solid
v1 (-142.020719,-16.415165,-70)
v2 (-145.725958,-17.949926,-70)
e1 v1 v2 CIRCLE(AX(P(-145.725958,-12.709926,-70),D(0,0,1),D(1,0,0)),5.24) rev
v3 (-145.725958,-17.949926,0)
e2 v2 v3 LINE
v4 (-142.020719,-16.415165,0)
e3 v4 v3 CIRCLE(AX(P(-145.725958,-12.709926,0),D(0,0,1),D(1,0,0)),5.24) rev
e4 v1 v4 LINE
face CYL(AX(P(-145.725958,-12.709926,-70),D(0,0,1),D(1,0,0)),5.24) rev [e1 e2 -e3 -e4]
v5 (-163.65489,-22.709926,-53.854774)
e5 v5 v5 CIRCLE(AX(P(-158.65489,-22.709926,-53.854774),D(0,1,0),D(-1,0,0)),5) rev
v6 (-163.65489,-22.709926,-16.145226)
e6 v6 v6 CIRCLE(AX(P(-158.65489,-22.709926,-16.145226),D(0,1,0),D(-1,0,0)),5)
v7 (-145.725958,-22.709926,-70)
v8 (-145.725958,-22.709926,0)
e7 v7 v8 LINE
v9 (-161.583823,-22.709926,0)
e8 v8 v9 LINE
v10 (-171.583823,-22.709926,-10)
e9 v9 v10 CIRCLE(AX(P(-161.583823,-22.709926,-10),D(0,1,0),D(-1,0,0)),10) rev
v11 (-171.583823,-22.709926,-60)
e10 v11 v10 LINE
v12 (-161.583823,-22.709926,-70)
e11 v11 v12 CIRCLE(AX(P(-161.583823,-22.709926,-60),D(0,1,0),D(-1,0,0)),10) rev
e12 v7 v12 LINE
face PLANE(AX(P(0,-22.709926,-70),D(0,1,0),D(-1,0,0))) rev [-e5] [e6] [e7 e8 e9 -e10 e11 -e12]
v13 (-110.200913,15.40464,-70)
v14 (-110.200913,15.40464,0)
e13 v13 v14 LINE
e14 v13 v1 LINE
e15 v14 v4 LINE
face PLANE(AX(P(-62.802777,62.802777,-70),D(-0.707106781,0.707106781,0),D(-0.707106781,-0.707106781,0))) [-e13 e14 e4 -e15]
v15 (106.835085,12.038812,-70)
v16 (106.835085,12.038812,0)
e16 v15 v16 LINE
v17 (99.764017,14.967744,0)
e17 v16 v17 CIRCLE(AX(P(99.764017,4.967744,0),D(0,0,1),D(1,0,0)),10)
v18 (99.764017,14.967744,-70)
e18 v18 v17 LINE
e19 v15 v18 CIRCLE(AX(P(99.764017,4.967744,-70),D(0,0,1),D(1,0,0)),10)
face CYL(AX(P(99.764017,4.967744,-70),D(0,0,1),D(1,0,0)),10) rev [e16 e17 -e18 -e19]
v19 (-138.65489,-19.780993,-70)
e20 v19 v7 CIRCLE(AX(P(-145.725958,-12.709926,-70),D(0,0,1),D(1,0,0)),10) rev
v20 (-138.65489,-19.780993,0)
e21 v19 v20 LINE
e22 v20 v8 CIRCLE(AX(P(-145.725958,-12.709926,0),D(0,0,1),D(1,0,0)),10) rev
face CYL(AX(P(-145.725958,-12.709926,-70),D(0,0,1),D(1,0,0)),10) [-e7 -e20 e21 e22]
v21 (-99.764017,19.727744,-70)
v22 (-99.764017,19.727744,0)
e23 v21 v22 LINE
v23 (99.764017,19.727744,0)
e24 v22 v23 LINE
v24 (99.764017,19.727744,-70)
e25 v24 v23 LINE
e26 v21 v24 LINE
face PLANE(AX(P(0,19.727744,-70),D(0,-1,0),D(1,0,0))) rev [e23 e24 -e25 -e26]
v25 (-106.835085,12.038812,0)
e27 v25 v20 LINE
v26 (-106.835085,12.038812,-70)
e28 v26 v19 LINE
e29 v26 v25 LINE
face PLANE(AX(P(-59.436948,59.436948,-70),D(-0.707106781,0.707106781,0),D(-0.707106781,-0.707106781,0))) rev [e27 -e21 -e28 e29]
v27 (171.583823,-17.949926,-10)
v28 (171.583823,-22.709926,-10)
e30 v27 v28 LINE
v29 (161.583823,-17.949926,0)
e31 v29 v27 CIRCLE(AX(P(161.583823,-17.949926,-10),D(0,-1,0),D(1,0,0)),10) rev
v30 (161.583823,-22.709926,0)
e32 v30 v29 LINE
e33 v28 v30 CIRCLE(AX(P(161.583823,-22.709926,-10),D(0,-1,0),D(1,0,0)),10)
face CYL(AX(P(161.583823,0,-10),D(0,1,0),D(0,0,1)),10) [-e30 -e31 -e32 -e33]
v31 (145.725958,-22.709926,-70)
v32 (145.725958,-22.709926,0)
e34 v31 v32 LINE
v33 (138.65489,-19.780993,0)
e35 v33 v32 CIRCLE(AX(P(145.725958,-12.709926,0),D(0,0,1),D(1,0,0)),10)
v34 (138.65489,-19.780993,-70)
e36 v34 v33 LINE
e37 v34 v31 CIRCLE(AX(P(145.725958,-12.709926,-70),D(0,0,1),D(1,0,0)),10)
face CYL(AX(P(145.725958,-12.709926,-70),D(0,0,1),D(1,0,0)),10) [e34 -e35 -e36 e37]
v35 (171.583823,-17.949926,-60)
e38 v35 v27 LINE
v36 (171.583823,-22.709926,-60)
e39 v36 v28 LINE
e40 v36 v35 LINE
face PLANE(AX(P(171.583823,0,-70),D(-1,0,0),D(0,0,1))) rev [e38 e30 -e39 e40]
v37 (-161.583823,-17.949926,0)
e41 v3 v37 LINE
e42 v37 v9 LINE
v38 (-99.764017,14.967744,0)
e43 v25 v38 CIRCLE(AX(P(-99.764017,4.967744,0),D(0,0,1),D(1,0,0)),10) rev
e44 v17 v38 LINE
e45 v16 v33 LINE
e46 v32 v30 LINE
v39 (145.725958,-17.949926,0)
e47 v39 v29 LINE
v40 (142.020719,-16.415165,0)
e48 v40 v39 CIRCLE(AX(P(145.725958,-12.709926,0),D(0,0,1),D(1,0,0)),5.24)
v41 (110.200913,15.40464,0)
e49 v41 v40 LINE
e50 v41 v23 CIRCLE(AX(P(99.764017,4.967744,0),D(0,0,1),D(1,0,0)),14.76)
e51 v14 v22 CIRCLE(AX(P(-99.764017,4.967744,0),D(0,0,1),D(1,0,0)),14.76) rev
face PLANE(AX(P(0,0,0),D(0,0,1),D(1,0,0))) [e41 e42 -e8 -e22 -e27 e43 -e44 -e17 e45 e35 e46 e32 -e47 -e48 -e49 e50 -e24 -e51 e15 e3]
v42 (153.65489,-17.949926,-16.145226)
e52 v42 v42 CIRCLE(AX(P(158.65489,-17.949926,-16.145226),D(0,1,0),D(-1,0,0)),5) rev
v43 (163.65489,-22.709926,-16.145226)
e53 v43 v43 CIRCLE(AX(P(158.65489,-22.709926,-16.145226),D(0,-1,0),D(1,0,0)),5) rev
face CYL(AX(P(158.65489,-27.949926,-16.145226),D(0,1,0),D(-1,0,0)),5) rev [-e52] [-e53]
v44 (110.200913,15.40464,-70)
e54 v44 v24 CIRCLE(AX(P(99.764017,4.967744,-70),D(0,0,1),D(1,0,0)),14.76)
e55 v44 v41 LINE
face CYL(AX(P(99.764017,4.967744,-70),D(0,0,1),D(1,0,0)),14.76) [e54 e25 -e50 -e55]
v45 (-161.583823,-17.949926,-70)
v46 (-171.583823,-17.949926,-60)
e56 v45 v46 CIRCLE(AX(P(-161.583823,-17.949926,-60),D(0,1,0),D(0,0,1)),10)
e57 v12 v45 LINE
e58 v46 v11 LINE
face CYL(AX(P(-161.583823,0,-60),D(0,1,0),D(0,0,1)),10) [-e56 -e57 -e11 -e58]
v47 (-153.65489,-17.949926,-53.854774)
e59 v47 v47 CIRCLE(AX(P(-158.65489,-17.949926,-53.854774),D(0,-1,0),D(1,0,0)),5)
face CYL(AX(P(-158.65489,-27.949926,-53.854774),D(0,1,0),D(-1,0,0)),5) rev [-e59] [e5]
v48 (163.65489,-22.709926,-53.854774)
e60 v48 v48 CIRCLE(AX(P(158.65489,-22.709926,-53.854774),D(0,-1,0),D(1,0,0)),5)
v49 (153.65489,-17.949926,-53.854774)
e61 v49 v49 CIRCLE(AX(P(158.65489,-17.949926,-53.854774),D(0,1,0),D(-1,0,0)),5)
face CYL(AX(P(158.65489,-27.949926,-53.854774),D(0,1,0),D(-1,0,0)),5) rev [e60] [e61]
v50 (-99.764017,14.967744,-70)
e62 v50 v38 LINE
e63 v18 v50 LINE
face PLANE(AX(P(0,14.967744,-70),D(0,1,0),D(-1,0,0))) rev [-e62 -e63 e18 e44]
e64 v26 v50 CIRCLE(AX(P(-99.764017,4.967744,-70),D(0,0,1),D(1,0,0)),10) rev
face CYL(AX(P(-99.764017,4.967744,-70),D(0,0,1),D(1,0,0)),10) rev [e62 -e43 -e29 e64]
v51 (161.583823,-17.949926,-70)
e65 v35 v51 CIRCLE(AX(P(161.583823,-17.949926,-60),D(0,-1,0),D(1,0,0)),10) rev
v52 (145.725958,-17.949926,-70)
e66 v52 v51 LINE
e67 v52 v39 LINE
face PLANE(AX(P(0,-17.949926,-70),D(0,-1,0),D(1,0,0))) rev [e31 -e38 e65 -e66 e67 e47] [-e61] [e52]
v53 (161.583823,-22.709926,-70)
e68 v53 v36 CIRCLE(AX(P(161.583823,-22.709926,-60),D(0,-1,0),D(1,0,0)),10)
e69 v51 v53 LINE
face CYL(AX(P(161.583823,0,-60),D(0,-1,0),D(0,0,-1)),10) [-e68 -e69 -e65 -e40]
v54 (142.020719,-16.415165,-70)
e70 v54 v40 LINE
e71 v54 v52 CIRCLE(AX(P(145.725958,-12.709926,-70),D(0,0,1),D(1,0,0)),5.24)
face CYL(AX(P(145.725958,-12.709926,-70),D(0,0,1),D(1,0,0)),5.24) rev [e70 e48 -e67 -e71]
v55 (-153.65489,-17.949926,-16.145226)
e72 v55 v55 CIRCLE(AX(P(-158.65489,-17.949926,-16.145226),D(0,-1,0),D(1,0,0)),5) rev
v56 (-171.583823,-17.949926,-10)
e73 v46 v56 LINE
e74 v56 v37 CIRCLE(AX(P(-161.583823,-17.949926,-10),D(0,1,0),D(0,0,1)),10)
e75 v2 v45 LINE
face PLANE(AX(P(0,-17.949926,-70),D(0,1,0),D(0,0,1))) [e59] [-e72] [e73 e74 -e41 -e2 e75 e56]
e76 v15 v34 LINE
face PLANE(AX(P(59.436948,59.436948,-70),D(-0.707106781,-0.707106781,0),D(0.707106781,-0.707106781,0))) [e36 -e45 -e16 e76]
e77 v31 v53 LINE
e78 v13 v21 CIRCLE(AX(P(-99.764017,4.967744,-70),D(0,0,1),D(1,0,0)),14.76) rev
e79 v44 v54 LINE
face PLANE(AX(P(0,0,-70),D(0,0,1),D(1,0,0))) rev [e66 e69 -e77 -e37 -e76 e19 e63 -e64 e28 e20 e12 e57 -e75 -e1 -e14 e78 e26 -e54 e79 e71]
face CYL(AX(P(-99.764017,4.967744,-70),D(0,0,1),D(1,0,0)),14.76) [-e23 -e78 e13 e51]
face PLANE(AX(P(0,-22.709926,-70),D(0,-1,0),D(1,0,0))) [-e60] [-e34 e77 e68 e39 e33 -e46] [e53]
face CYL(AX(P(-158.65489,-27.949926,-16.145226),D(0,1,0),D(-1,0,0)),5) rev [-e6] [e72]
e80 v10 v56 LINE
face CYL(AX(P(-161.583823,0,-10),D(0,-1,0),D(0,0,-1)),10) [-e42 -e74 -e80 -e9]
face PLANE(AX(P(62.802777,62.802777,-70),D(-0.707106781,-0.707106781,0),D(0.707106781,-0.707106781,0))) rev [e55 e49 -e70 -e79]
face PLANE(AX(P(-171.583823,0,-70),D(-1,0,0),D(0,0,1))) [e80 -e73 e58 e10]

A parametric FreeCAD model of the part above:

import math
import FreeCAD as App
import Part
import Sketcher
from FreeCAD import Vector
Q = App.Units.Quantity


def edges_at(feature, points):
    """Names of the edges that pass closest to the given points."""
    edges = feature.Shape.Edges
    near = lambda p: min(range(len(edges)), key=lambda i: edges[i].distToShape(Part.Vertex(*p))[0])
    return sorted({f"Edge{near(p) + 1}" for p in points})

doc = App.newDocument("Part")
body = doc.addObject("PartDesign::Body", "Body")

# Sketch on XY plane
sketch1 = body.newObject("Sketcher::SketchObject", "Sketch")
sketch1.AttachmentSupport = (doc.getObject("XY_Plane"), [""])
sketch1.MapMode = "FlatFace"
sketch1.addGeometry(Part.LineSegment(Vector(142, -16.4, 0), Vector(110.2, 15.4, 0)), False)
sketch1.addGeometry(Part.ArcOfCircle(Part.Circle(Vector(99.8, 5, 0), Vector(0, 0, 1), 14.8), math.radians(45), math.radians(90)), False)
sketch1.addGeometry(Part.LineSegment(Vector(99.8, 19.7, 0), Vector(-99.8, 19.7, 0)), False)
sketch1.addGeometry(Part.ArcOfCircle(Part.Circle(Vector(-99.8, 5, 0), Vector(0, 0, 1), 14.8), math.radians(90), math.radians(135)), False)
sketch1.addGeometry(Part.LineSegment(Vector(-110.2, 15.4, 0), Vector(-142, -16.4, 0)), False)
sketch1.addGeometry(Part.ArcOfCircle(Part.Circle(Vector(-145.7, -12.7, 0), Vector(0, 0, 1), 5.2), math.radians(-90), math.radians(-45)), False)
sketch1.addGeometry(Part.LineSegment(Vector(-145.7, -17.9, 0), Vector(-171.6, -17.9, 0)), False)
sketch1.addGeometry(Part.LineSegment(Vector(-171.6, -17.9, 0), Vector(-171.6, -22.7, 0)), False)
sketch1.addGeometry(Part.LineSegment(Vector(-171.6, -22.7, 0), Vector(-145.7, -22.7, 0)), False)
sketch1.addGeometry(Part.ArcOfCircle(Part.Circle(Vector(-145.7, -12.7, 0), Vector(0, 0, 1), 10), math.radians(-90), math.radians(-45)), False)
sketch1.addGeometry(Part.LineSegment(Vector(-138.7, -19.8, 0), Vector(-106.8, 12, 0)), False)
sketch1.addGeometry(Part.ArcOfCircle(Part.Circle(Vector(-99.8, 5, 0), Vector(0, 0, 1), 10), math.radians(90), math.radians(135)), False)
sketch1.addGeometry(Part.LineSegment(Vector(-99.8, 15, 0), Vector(99.8, 15, 0)), False)
sketch1.addGeometry(Part.ArcOfCircle(Part.Circle(Vector(99.8, 5, 0), Vector(0, 0, 1), 10), math.radians(45), math.radians(90)), False)
sketch1.addGeometry(Part.LineSegment(Vector(106.8, 12, 0), Vector(138.7, -19.8, 0)), False)
sketch1.addGeometry(Part.ArcOfCircle(Part.Circle(Vector(145.7, -12.7, 0), Vector(0, 0, 1), 10), math.radians(-135), math.radians(-90)), False)
sketch1.addGeometry(Part.LineSegment(Vector(145.7, -22.7, 0), Vector(171.6, -22.7, 0)), False)
sketch1.addGeometry(Part.LineSegment(Vector(171.6, -22.7, 0), Vector(171.6, -17.9, 0)), False)
sketch1.addGeometry(Part.LineSegment(Vector(171.6, -17.9, 0), Vector(145.7, -17.9, 0)), False)
sketch1.addGeometry(Part.ArcOfCircle(Part.Circle(Vector(145.7, -12.7, 0), Vector(0, 0, 1), 5.2), math.radians(-135), math.radians(-90)), False)
sketch1.addConstraint(Sketcher.Constraint("Tangent", 0, 2, 1, 1))
sketch1.addConstraint(Sketcher.Constraint("Tangent", 1, 2, 2, 1))
sketch1.addConstraint(Sketcher.Constraint("Tangent", 2, 2, 3, 1))
sketch1.addConstraint(Sketcher.Constraint("Tangent", 3, 2, 4, 1))
sketch1.addConstraint(Sketcher.Constraint("Tangent", 4, 2, 5, 2))
sketch1.addConstraint(Sketcher.Constraint("Tangent", 5, 1, 6, 1))
sketch1.addConstraint(Sketcher.Constraint("Coincident", 6, 2, 7, 1))
sketch1.addConstraint(Sketcher.Constraint("Coincident", 7, 2, 8, 1))
sketch1.addConstraint(Sketcher.Constraint("Tangent", 8, 2, 9, 1))
sketch1.addConstraint(Sketcher.Constraint("Tangent", 9, 2, 10, 1))
sketch1.addConstraint(Sketcher.Constraint("Tangent", 10, 2, 11, 2))
sketch1.addConstraint(Sketcher.Constraint("Tangent", 11, 1, 12, 1))
sketch1.addConstraint(Sketcher.Constraint("Tangent", 12, 2, 13, 2))
sketch1.addConstraint(Sketcher.Constraint("Tangent", 13, 1, 14, 1))
sketch1.addConstraint(Sketcher.Constraint("Tangent", 14, 2, 15, 1))
sketch1.addConstraint(Sketcher.Constraint("Tangent", 15, 2, 16, 1))
sketch1.addConstraint(Sketcher.Constraint("Coincident", 16, 2, 17, 1))
sketch1.addConstraint(Sketcher.Constraint("Coincident", 17, 2, 18, 1))
sketch1.addConstraint(Sketcher.Constraint("Tangent", 18, 2, 19, 2))
sketch1.addConstraint(Sketcher.Constraint("Tangent", 19, 1, 0, 1))
sketch1.addConstraint(Sketcher.Constraint("Horizontal", 2))
sketch1.addConstraint(Sketcher.Constraint("Horizontal", 6))
sketch1.addConstraint(Sketcher.Constraint("Vertical", 7))
sketch1.addConstraint(Sketcher.Constraint("Horizontal", 8))
sketch1.addConstraint(Sketcher.Constraint("Horizontal", 12))
sketch1.addConstraint(Sketcher.Constraint("Horizontal", 16))
sketch1.addConstraint(Sketcher.Constraint("Vertical", 17))
sketch1.addConstraint(Sketcher.Constraint("Horizontal", 18))
sketch1.addConstraint(Sketcher.Constraint("Coincident", 9, 3, 5, 3))
sketch1.addConstraint(Sketcher.Constraint("Coincident", 11, 3, 3, 3))
sketch1.addConstraint(Sketcher.Constraint("Coincident", 13, 3, 1, 3))
sketch1.addConstraint(Sketcher.Constraint("Coincident", 19, 3, 15, 3))
sketch1.addConstraint(Sketcher.Constraint("Equal", 1, 3))
sketch1.addConstraint(Sketcher.Constraint("Equal", 9, 11))
sketch1.addConstraint(Sketcher.Constraint("Equal", 13, 15))
sketch1.addConstraint(Sketcher.Constraint("Equal", 5, 19))
sketch1.addConstraint(Sketcher.Constraint("Symmetric", 5, 3, 15, 3, -2))
sketch1.addConstraint(Sketcher.Constraint("Perpendicular", 0, 4))
sketch1.addConstraint(Sketcher.Constraint("Parallel", 4, 10))
sketch1.addConstraint(Sketcher.Constraint("Horizontal", 0, 2, 3, 2))
sketch1.addConstraint(Sketcher.Constraint("Equal", 8, 16))
sketch1.addConstraint(Sketcher.Constraint("Radius", 9, Q("10 mm")))
sketch1.addConstraint(Sketcher.Constraint("Radius", 1, Q("14.76 mm")))
sketch1.addConstraint(Sketcher.Constraint("Distance", 0, Q("45 mm")))
sketch1.addConstraint(Sketcher.Constraint("DistanceX", 2, 2, 2, 1, Q("199.528035 mm")))
sketch1.addConstraint(Sketcher.Constraint("DistanceX", 6, 2, 6, 1, Q("25.857864 mm")))
sketch1.addConstraint(Sketcher.Constraint("DistanceY", -1, 1, 0, 2, Q("15.40464 mm")))
pad1 = body.newObject("PartDesign::Pad", "Pad")
pad1.Profile = sketch1
pad1.Length = 70
pad1.Reversed = True
doc.recompute()

fillet = body.newObject("PartDesign::Fillet", "Fillet")
fillet.Base = (pad1, edges_at(pad1, [
    (171.584, -20.33, 0),
    (-171.584, -20.33, 0),
    (-171.584, -20.33, -70),
    (171.584, -20.33, -70),
]))
fillet.Radius = 10

# Sketch on XZ plane
sketch2 = body.newObject("Sketcher::SketchObject", "Sketch001")
sketch2.AttachmentSupport = (doc.getObject("XZ_Plane"), [""])
sketch2.MapMode = "FlatFace"
sketch2.AttachmentOffset = App.Placement(Vector(0, 0, 17.949926), App.Rotation())
sketch2.addGeometry(Part.Circle(Vector(159, -54, 0), Vector(0, 0, 1), 5), False)
sketch2.addGeometry(Part.Circle(Vector(159, -16, 0), Vector(0, 0, 1), 5), False)
sketch2.addConstraint(Sketcher.Constraint("Equal", 0, 1))
sketch2.addConstraint(Sketcher.Constraint("Vertical", 0, 3, 1, 3))
sketch2.addConstraint(Sketcher.Constraint("Diameter", 0, Q("10 mm")))
sketch2.addConstraint(Sketcher.Constraint("DistanceX", -1, 1, 0, 3, Q("158.65489 mm")))
sketch2.addConstraint(Sketcher.Constraint("DistanceY", 0, 3, -1, 1, Q("53.854774 mm")))
sketch2.addConstraint(Sketcher.Constraint("DistanceY", 1, 3, -1, 1, Q("16.145226 mm")))
pocket1 = body.newObject("PartDesign::Pocket", "Pocket")
pocket1.Profile = sketch2
pocket1.Length = 10
pocket1.Reversed = True
doc.recompute()

mirrored = body.newObject("PartDesign::Mirrored", "Mirrored")
mirrored.Originals = [pocket1]
mirrored.MirrorPlane = (doc.getObject("YZ_Plane"), [""])
body.Tip = mirrored

doc.recompute()
